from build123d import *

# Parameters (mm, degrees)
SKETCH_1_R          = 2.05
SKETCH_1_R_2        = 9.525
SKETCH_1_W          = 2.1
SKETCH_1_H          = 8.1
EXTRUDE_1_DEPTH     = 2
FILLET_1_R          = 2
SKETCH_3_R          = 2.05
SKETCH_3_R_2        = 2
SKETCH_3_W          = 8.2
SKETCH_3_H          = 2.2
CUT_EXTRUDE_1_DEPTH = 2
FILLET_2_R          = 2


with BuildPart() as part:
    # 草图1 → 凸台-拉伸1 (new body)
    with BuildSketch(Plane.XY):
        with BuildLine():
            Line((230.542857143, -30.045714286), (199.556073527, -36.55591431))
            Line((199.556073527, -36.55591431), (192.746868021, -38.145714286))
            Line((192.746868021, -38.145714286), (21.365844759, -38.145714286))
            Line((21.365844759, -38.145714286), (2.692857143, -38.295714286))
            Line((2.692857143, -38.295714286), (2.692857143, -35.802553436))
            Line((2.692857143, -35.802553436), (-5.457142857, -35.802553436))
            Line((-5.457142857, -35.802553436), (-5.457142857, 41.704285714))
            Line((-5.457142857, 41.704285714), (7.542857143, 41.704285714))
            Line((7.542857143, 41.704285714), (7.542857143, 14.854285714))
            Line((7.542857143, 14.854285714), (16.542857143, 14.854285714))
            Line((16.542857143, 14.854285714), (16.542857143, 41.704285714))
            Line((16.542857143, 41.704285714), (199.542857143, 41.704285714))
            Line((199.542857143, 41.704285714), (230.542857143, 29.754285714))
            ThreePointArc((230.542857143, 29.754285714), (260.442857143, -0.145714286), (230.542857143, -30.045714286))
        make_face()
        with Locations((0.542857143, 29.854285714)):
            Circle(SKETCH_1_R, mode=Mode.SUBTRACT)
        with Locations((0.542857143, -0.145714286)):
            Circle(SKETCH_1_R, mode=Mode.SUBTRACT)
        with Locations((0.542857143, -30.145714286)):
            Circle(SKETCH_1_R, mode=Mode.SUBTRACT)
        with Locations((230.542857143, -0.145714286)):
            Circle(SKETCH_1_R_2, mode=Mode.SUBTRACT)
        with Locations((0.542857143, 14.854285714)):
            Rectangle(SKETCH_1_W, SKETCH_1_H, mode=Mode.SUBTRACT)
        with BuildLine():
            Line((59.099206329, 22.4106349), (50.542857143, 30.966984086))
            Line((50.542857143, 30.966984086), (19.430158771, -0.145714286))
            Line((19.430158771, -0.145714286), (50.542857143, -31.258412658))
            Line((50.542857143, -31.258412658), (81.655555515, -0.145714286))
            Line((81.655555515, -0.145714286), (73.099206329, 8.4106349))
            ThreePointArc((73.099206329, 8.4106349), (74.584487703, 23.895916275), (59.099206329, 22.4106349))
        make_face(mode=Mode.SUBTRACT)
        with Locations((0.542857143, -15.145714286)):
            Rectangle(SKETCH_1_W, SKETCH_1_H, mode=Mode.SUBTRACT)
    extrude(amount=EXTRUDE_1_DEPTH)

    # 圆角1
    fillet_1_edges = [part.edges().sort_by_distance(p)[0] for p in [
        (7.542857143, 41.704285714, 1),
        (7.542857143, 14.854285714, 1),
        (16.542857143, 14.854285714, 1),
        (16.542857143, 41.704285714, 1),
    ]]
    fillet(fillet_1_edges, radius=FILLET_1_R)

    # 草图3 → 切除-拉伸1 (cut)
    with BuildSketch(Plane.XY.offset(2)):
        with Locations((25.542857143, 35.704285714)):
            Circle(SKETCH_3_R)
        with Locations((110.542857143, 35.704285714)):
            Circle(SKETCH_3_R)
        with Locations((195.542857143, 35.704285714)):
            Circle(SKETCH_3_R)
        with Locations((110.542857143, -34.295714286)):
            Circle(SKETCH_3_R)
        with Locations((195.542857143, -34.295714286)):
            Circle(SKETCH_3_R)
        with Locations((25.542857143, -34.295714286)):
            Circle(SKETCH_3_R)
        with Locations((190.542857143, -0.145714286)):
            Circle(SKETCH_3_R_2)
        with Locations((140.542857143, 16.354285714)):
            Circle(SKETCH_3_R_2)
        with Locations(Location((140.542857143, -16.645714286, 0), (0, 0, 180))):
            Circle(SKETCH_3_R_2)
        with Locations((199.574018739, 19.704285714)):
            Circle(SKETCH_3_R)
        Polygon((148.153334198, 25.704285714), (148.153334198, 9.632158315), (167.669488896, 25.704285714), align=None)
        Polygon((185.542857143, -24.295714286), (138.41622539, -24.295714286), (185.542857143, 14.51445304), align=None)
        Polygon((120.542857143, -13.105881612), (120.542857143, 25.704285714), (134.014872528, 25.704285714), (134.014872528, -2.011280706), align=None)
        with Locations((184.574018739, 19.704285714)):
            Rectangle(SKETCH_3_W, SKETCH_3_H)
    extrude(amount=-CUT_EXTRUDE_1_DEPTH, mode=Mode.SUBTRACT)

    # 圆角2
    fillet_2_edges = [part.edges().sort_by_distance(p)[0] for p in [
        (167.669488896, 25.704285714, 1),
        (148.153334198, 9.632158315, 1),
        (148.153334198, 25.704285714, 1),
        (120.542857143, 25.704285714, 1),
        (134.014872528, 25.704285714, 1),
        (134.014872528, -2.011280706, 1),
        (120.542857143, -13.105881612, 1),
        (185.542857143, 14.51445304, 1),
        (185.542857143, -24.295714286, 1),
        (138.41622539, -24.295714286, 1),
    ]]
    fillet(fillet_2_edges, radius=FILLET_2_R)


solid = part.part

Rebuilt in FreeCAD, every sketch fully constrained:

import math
import FreeCAD as App
import Part
import Sketcher

V = App.Vector
Q = App.Units.Quantity


def edges_at(feature, points):
    """Names of the edges that pass closest to the given points."""
    edges = feature.Shape.Edges
    near = lambda p: min(range(len(edges)), key=lambda i: edges[i].distToShape(Part.Vertex(*p))[0])
    return sorted({f"Edge{near(p) + 1}" for p in points})

doc = App.newDocument("Part")
body = doc.addObject("PartDesign::Body", "Body")

sketch1 = doc.addObject("Sketcher::SketchObject", "Sketch")
body.addObject(sketch1)
sketch1.AttachmentSupport = (doc.XY_Plane, [""])
sketch1.MapMode = "FlatFace"
sketch1.addGeometry(Part.LineSegment(V(199.556074, -36.555914, 0), V(230.542857, -30.045714, 0)), False)
sketch1.addGeometry(Part.ArcOfCircle(Part.Circle(V(230.542857, -0.145714, 0), V(0, 0, 1), 29.9), math.radians(-90), math.radians(90)), False)
sketch1.addGeometry(Part.LineSegment(V(230.542857, 29.754286, 0), V(199.542857, 41.704286, 0)), False)
sketch1.addGeometry(Part.LineSegment(V(199.542857, 41.704286, 0), V(16.542857, 41.704286, 0)), False)
sketch1.addGeometry(Part.LineSegment(V(16.542857, 41.704286, 0), V(16.542857, 14.854286, 0)), False)
sketch1.addGeometry(Part.LineSegment(V(16.542857, 14.854286, 0), V(7.542857, 14.854286, 0)), False)
sketch1.addGeometry(Part.LineSegment(V(7.542857, 14.854286, 0), V(7.542857, 41.704286, 0)), False)
sketch1.addGeometry(Part.LineSegment(V(7.542857, 41.704286, 0), V(-5.457143, 41.704286, 0)), False)
sketch1.addGeometry(Part.LineSegment(V(-5.457143, 41.704286, 0), V(-5.457143, -35.802553, 0)), False)
sketch1.addGeometry(Part.LineSegment(V(-5.457143, -35.802553, 0), V(2.692857, -35.802553, 0)), False)
sketch1.addGeometry(Part.LineSegment(V(2.692857, -35.802553, 0), V(2.692857, -38.295714, 0)), False)
sketch1.addGeometry(Part.LineSegment(V(2.692857, -38.295714, 0), V(21.365845, -38.145714, 0)), False)
sketch1.addGeometry(Part.LineSegment(V(21.365845, -38.145714, 0), V(192.746868, -38.145714, 0)), False)
sketch1.addGeometry(Part.LineSegment(V(192.746868, -38.145714, 0), V(199.556074, -36.555914, 0)), False)
sketch1.addGeometry(Part.Circle(V(0.542857, -30.145714, 0), V(0, 0, 1), 2.05), False)
sketch1.addGeometry(Part.LineSegment(V(-0.507143, -19.195714, 0), V(-0.507143, -11.095714, 0)), False)
sketch1.addGeometry(Part.LineSegment(V(-0.507143, -11.095714, 0), V(1.592857, -11.095714, 0)), False)
sketch1.addGeometry(Part.LineSegment(V(1.592857, -11.095714, 0), V(1.592857, -19.195714, 0)), False)
sketch1.addGeometry(Part.LineSegment(V(1.592857, -19.195714, 0), V(-0.507143, -19.195714, 0)), False)
sketch1.addGeometry(Part.Circle(V(230.542857, -0.145714, 0), V(0, 0, 1), 9.525), False)
sketch1.addGeometry(Part.ArcOfCircle(Part.Circle(V(67.454494, 16.765923, 0), V(0, 0, 1), 10.083333), math.radians(-55.957607), math.radians(145.957607)), False)
sketch1.addGeometry(Part.LineSegment(V(73.099206, 8.410635, 0), V(81.655556, -0.145714, 0)), False)
sketch1.addGeometry(Part.LineSegment(V(81.655556, -0.145714, 0), V(50.542857, -31.258413, 0)), False)
sketch1.addGeometry(Part.LineSegment(V(50.542857, -31.258413, 0), V(19.430159, -0.145714, 0)), False)
sketch1.addGeometry(Part.LineSegment(V(19.430159, -0.145714, 0), V(50.542857, 30.966984, 0)), False)
sketch1.addGeometry(Part.LineSegment(V(50.542857, 30.966984, 0), V(59.099206, 22.410635, 0)), False)
sketch1.addGeometry(Part.Circle(V(0.542857, -0.145714, 0), V(0, 0, 1), 2.05), False)
sketch1.addGeometry(Part.LineSegment(V(-0.507143, 10.804286, 0), V(-0.507143, 18.904286, 0)), False)
sketch1.addGeometry(Part.LineSegment(V(-0.507143, 18.904286, 0), V(1.592857, 18.904286, 0)), False)
sketch1.addGeometry(Part.LineSegment(V(1.592857, 18.904286, 0), V(1.592857, 10.804286, 0)), False)
sketch1.addGeometry(Part.LineSegment(V(1.592857, 10.804286, 0), V(-0.507143, 10.804286, 0)), False)
sketch1.addGeometry(Part.Circle(V(0.542857, 29.854286, 0), V(0, 0, 1), 2.05), False)
sketch1.addConstraint(Sketcher.Constraint("Coincident", 0, 2, 1, 1))
sketch1.addConstraint(Sketcher.Constraint("Coincident", 1, 2, 2, 1))
sketch1.addConstraint(Sketcher.Constraint("Coincident", 2, 2, 3, 1))
sketch1.addConstraint(Sketcher.Constraint("Coincident", 3, 2, 4, 1))
sketch1.addConstraint(Sketcher.Constraint("Coincident", 4, 2, 5, 1))
sketch1.addConstraint(Sketcher.Constraint("Coincident", 5, 2, 6, 1))
sketch1.addConstraint(Sketcher.Constraint("Coincident", 6, 2, 7, 1))
sketch1.addConstraint(Sketcher.Constraint("Coincident", 7, 2, 8, 1))
sketch1.addConstraint(Sketcher.Constraint("Coincident", 8, 2, 9, 1))
sketch1.addConstraint(Sketcher.Constraint("Coincident", 9, 2, 10, 1))
sketch1.addConstraint(Sketcher.Constraint("Coincident", 10, 2, 11, 1))
sketch1.addConstraint(Sketcher.Constraint("Coincident", 11, 2, 12, 1))
sketch1.addConstraint(Sketcher.Constraint("Coincident", 12, 2, 13, 1))
sketch1.addConstraint(Sketcher.Constraint("Coincident", 13, 2, 0, 1))
sketch1.addConstraint(Sketcher.Constraint("Coincident", 15, 2, 16, 1))
sketch1.addConstraint(Sketcher.Constraint("Coincident", 16, 2, 17, 1))
sketch1.addConstraint(Sketcher.Constraint("Coincident", 17, 2, 18, 1))
sketch1.addConstraint(Sketcher.Constraint("Coincident", 18, 2, 15, 1))
sketch1.addConstraint(Sketcher.Constraint("Coincident", 20, 1, 21, 1))
sketch1.addConstraint(Sketcher.Constraint("Coincident", 21, 2, 22, 1))
sketch1.addConstraint(Sketcher.Constraint("Coincident", 22, 2, 23, 1))
sketch1.addConstraint(Sketcher.Constraint("Coincident", 23, 2, 24, 1))
sketch1.addConstraint(Sketcher.Constraint("Coincident", 24, 2, 25, 1))
sketch1.addConstraint(Sketcher.Constraint("Coincident", 25, 2, 20, 2))
sketch1.addConstraint(Sketcher.Constraint("Coincident", 27, 2, 28, 1))
sketch1.addConstraint(Sketcher.Constraint("Coincident", 28, 2, 29, 1))
sketch1.addConstraint(Sketcher.Constraint("Coincident", 29, 2, 30, 1))
sketch1.addConstraint(Sketcher.Constraint("Coincident", 30, 2, 27, 1))
sketch1.addConstraint(Sketcher.Constraint("Horizontal", 3))
sketch1.addConstraint(Sketcher.Constraint("Vertical", 4))
sketch1.addConstraint(Sketcher.Constraint("Horizontal", 5))
sketch1.addConstraint(Sketcher.Constraint("Vertical", 6))
sketch1.addConstraint(Sketcher.Constraint("Horizontal", 7))
sketch1.addConstraint(Sketcher.Constraint("Vertical", 8))
sketch1.addConstraint(Sketcher.Constraint("Horizontal", 9))
sketch1.addConstraint(Sketcher.Constraint("Vertical", 10))
sketch1.addConstraint(Sketcher.Constraint("Horizontal", 12))
sketch1.addConstraint(Sketcher.Constraint("Vertical", 15))
sketch1.addConstraint(Sketcher.Constraint("Horizontal", 16))
sketch1.addConstraint(Sketcher.Constraint("Vertical", 17))
sketch1.addConstraint(Sketcher.Constraint("Horizontal", 18))
sketch1.addConstraint(Sketcher.Constraint("Vertical", 27))
sketch1.addConstraint(Sketcher.Constraint("Horizontal", 28))
sketch1.addConstraint(Sketcher.Constraint("Vertical", 29))
sketch1.addConstraint(Sketcher.Constraint("Horizontal", 30))
sketch1.addConstraint(Sketcher.Constraint("Coincident", 19, 3, 1, 3))
sketch1.addConstraint(Sketcher.Constraint("Equal", 14, 26))
sketch1.addConstraint(Sketcher.Constraint("Equal", 26, 31))
sketch1.addConstraint(Sketcher.Constraint("Perpendicular", 21, 22))
sketch1.addConstraint(Sketcher.Constraint("Perpendicular", 22, 23))
sketch1.addConstraint(Sketcher.Constraint("Perpendicular", 23, 24))
sketch1.addConstraint(Sketcher.Constraint("Perpendicular", 24, 25))
sketch1.addConstraint(Sketcher.Constraint("Horizontal", 19, 3, 26, 3))
sketch1.addConstraint(Sketcher.Constraint("Horizontal", 3, 2, 6, 2))
sketch1.addConstraint(Sketcher.Constraint("Horizontal", 26, 3, 21, 2))
sketch1.addConstraint(Sketcher.Constraint("Horizontal", 21, 2, 23, 2))
sketch1.addConstraint(Sketcher.Constraint("Vertical", 14, 3, 26, 3))
sketch1.addConstraint(Sketcher.Constraint("Vertical", 26, 3, 31, 3))
sketch1.addConstraint(Sketcher.Constraint("Vertical", 19, 3, 0, 2))
sketch1.addConstraint(Sketcher.Constraint("Vertical", 0, 2, 1, 2))
sketch1.addConstraint(Sketcher.Constraint("Vertical", 22, 2, 24, 2))
sketch1.addConstraint(Sketcher.Constraint("Vertical", 18, 2, 27, 2))
sketch1.addConstraint(Sketcher.Constraint("Vertical", 17, 2, 28, 2))
sketch1.addConstraint(Sketcher.Constraint("Equal", 17, 27))
sketch1.addConstraint(Sketcher.Constraint("Equal", 22, 23))
sketch1.addConstraint(Sketcher.Constraint("Equal", 21, 25))
sketch1.addConstraint(Sketcher.Constraint("Diameter", 14, Q("4.1 mm")))
sketch1.addConstraint(Sketcher.Constraint("Radius", 1, Q("29.9 mm")))
sketch1.addConstraint(Sketcher.Constraint("Diameter", 19, Q("19.05 mm")))
sketch1.addConstraint(Sketcher.Constraint("DistanceX", 3, 2, 3, 1, Q("183 mm")))
sketch1.addConstraint(Sketcher.Constraint("DistanceX", 5, 2, 5, 1, Q("9 mm")))
sketch1.addConstraint(Sketcher.Constraint("DistanceX", 7, 2, 7, 1, Q("13 mm")))
sketch1.addConstraint(Sketcher.Constraint("Distance", 22, Q("44 mm")))
sketch1.addConstraint(Sketcher.Constraint("DistanceX", 16, 1, 16, 2, Q("2.1 mm")))
sketch1.addConstraint(Sketcher.Constraint("DistanceY", 15, 1, 15, 2, Q("8.1 mm")))
sketch1.addConstraint(Sketcher.Constraint("DistanceX", 14, 3, 1, 3, Q("230 mm")))
sketch1.addConstraint(Sketcher.Constraint("DistanceY", 14, 3, 1, 3, Q("30 mm")))
sketch1.addConstraint(Sketcher.Constraint("DistanceY", 26, 3, 31, 3, Q("30 mm")))
sketch1.addConstraint(Sketcher.Constraint("DistanceX", 2, 2, 1, 2, Q("31 mm")))
sketch1.addConstraint(Sketcher.Constraint("DistanceY", 26, 3, 4, 2, Q("15 mm")))
sketch1.addConstraint(Sketcher.Constraint("DistanceY", 11, 2, 14, 3, Q("8 mm")))
sketch1.addConstraint(Sketcher.Constraint("DistanceX", 3, 2, 24, 2, Q("34 mm")))
sketch1.addConstraint(Sketcher.Constraint("DistanceX", 25, 2, 20, 1, Q("14 mm")))
sketch1.addConstraint(Sketcher.Constraint("DistanceX", 9, 1, 9, 2, Q("8.15 mm")))
sketch1.addConstraint(Sketcher.Constraint("DistanceY", 4, 2, 4, 1, Q("26.85 mm")))
sketch1.addConstraint(Sketcher.Constraint("DistanceX", 15, 2, 9, 2, Q("3.2 mm")))
sketch1.addConstraint(Sketcher.Constraint("DistanceY", 27, 2, 7, 2, Q("22.8 mm")))
sketch1.addConstraint(Sketcher.Constraint("DistanceY", 10, 2, 14, 3, Q("8.15 mm")))
sketch1.addConstraint(Sketcher.Constraint("DistanceY", 15, 2, 26, 3, Q("10.95 mm")))
sketch1.addConstraint(Sketcher.Constraint("Radius", 20, Q("10.083333 mm")))
sketch1.addConstraint(Sketcher.Constraint("DistanceY", 8, 2, 8, 1, Q("77.506839 mm")))
sketch1.addConstraint(Sketcher.Constraint("DistanceY", 12, 2, 13, 2, Q("1.5898 mm")))
sketch1.addConstraint(Sketcher.Constraint("Distance", 11, Q("18.67359 mm")))
sketch1.addConstraint(Sketcher.Constraint("DistanceX", 12, 1, 12, 2, Q("171.381023 mm")))
sketch1.addConstraint(Sketcher.Constraint("DistanceX", -1, 1, 12, 2, Q("192.746868 mm")))
sketch1.addConstraint(Sketcher.Constraint("Distance", 0, Q("31.663283 mm")))
sketch1.addConstraint(Sketcher.Constraint("DistanceY", 1, 3, -1, 1, Q("0.145714 mm")))
pad1 = doc.addObject("PartDesign::Pad", "Pad")
body.addObject(pad1)
pad1.Profile = sketch1
pad1.Length = 2
doc.recompute()

fillet = doc.addObject("PartDesign::Fillet", "Fillet")
body.addObject(fillet)
fillet.Base = (pad1, edges_at(pad1, [
    (7.543, 41.704, 1),
    (7.543, 14.854, 1),
    (16.543, 14.854, 1),
    (16.543, 41.704, 1),
]))
fillet.Radius = 2

sketch2 = doc.addObject("Sketcher::SketchObject", "Sketch001")
body.addObject(sketch2)
sketch2.AttachmentSupport = (doc.XY_Plane, [""])
sketch2.MapMode = "FlatFace"
sketch2.AttachmentOffset = App.Placement(V(0, 0, 2), App.Rotation())
sketch2.addGeometry(Part.Circle(V(25.542857, 35.704286, 0), V(0, 0, 1), 2.05), False)
sketch2.addGeometry(Part.Circle(V(110.542857, 35.704286, 0), V(0, 0, 1), 2.05), False)
sketch2.addGeometry(Part.Circle(V(195.542857, 35.704286, 0), V(0, 0, 1), 2.05), False)
sketch2.addGeometry(Part.Circle(V(110.542857, -34.295714, 0), V(0, 0, 1), 2.05), False)
sketch2.addGeometry(Part.Circle(V(195.542857, -34.295714, 0), V(0, 0, 1), 2.05), False)
sketch2.addGeometry(Part.Circle(V(25.542857, -34.295714, 0), V(0, 0, 1), 2.05), False)
sketch2.addGeometry(Part.Circle(V(190.542857, -0.145714, 0), V(0, 0, 1), 2), False)
sketch2.addGeometry(Part.Circle(V(140.542857, 16.354286, 0), V(0, 0, 1), 2), False)
sketch2.addGeometry(Part.Circle(V(140.542857, -16.645714, 0), V(0, 0, 1), 2), False)
sketch2.addGeometry(Part.Circle(V(199.574019, 19.704286, 0), V(0, 0, 1), 2.05), False)
sketch2.addGeometry(Part.LineSegment(V(148.153334, 25.704286, 0), V(148.153334, 9.632158, 0)), False)
sketch2.addGeometry(Part.LineSegment(V(148.153334, 9.632158, 0), V(167.669489, 25.704286, 0)), False)
sketch2.addGeometry(Part.LineSegment(V(167.669489, 25.704286, 0), V(148.153334, 25.704286, 0)), False)
sketch2.addGeometry(Part.LineSegment(V(138.416225, -24.295714, 0), V(185.542857, -24.295714, 0)), False)
sketch2.addGeometry(Part.LineSegment(V(185.542857, -24.295714, 0), V(185.542857, 14.514453, 0)), False)
sketch2.addGeometry(Part.LineSegment(V(185.542857, 14.514453, 0), V(138.416225, -24.295714, 0)), False)
sketch2.addGeometry(Part.LineSegment(V(120.542857, 25.704286, 0), V(120.542857, -13.105882, 0)), False)
sketch2.addGeometry(Part.LineSegment(V(120.542857, -13.105882, 0), V(134.014873, -2.011281, 0)), False)
sketch2.addGeometry(Part.LineSegment(V(134.014873, -2.011281, 0), V(134.014873, 25.704286, 0)), False)
sketch2.addGeometry(Part.LineSegment(V(134.014873, 25.704286, 0), V(120.542857, 25.704286, 0)), False)
sketch2.addGeometry(Part.LineSegment(V(180.474019, 20.804286, 0), V(180.474019, 18.604286, 0)), False)
sketch2.addGeometry(Part.LineSegment(V(180.474019, 18.604286, 0), V(188.674019, 18.604286, 0)), False)
sketch2.addGeometry(Part.LineSegment(V(188.674019, 18.604286, 0), V(188.674019, 20.804286, 0)), False)
sketch2.addGeometry(Part.LineSegment(V(188.674019, 20.804286, 0), V(180.474019, 20.804286, 0)), False)
sketch2.addConstraint(Sketcher.Constraint("Coincident", 10, 2, 11, 1))
sketch2.addConstraint(Sketcher.Constraint("Coincident", 11, 2, 12, 1))
sketch2.addConstraint(Sketcher.Constraint("Coincident", 12, 2, 10, 1))
sketch2.addConstraint(Sketcher.Constraint("Coincident", 13, 2, 14, 1))
sketch2.addConstraint(Sketcher.Constraint("Coincident", 14, 2, 15, 1))
sketch2.addConstraint(Sketcher.Constraint("Coincident", 15, 2, 13, 1))
sketch2.addConstraint(Sketcher.Constraint("Coincident", 16, 2, 17, 1))
sketch2.addConstraint(Sketcher.Constraint("Coincident", 17, 2, 18, 1))
sketch2.addConstraint(Sketcher.Constraint("Coincident", 18, 2, 19, 1))
sketch2.addConstraint(Sketcher.Constraint("Coincident", 19, 2, 16, 1))
sketch2.addConstraint(Sketcher.Constraint("Coincident", 20, 2, 21, 1))
sketch2.addConstraint(Sketcher.Constraint("Coincident", 21, 2, 22, 1))
sketch2.addConstraint(Sketcher.Constraint("Coincident", 22, 2, 23, 1))
sketch2.addConstraint(Sketcher.Constraint("Coincident", 23, 2, 20, 1))
sketch2.addConstraint(Sketcher.Constraint("Vertical", 10))
sketch2.addConstraint(Sketcher.Constraint("Horizontal", 12))
sketch2.addConstraint(Sketcher.Constraint("Horizontal", 13))
sketch2.addConstraint(Sketcher.Constraint("Vertical", 14))
sketch2.addConstraint(Sketcher.Constraint("Vertical", 16))
sketch2.addConstraint(Sketcher.Constraint("Vertical", 18))
sketch2.addConstraint(Sketcher.Constraint("Horizontal", 19))
sketch2.addConstraint(Sketcher.Constraint("Vertical", 20))
sketch2.addConstraint(Sketcher.Constraint("Horizontal", 21))
sketch2.addConstraint(Sketcher.Constraint("Vertical", 22))
sketch2.addConstraint(Sketcher.Constraint("Horizontal", 23))
sketch2.addConstraint(Sketcher.Constraint("Equal", 0, 1))
sketch2.addConstraint(Sketcher.Constraint("Equal", 1, 2))
sketch2.addConstraint(Sketcher.Constraint("Equal", 2, 3))
sketch2.addConstraint(Sketcher.Constraint("Equal", 3, 4))
sketch2.addConstraint(Sketcher.Constraint("Equal", 4, 5))
sketch2.addConstraint(Sketcher.Constraint("Equal", 6, 7))
sketch2.addConstraint(Sketcher.Constraint("Equal", 7, 8))
sketch2.addConstraint(Sketcher.Constraint("Equal", 5, 9))
sketch2.addConstraint(Sketcher.Constraint("Parallel", 11, 15))
sketch2.addConstraint(Sketcher.Constraint("Parallel", 15, 17))
sketch2.addConstraint(Sketcher.Constraint("Horizontal", 0, 3, 1, 3))
sketch2.addConstraint(Sketcher.Constraint("Horizontal", 1, 3, 2, 3))
sketch2.addConstraint(Sketcher.Constraint("Horizontal", 3, 3, 4, 3))
sketch2.addConstraint(Sketcher.Constraint("Horizontal", 4, 3, 5, 3))
sketch2.addConstraint(Sketcher.Constraint("Horizontal", 12, 2, 18, 2))
sketch2.addConstraint(Sketcher.Constraint("Vertical", 1, 3, 3, 3))
sketch2.addConstraint(Sketcher.Constraint("Vertical", 2, 3, 4, 3))
sketch2.addConstraint(Sketcher.Constraint("Vertical", 0, 3, 5, 3))
sketch2.addConstraint(Sketcher.Constraint("Vertical", 7, 3, 8, 3))
sketch2.addConstraint(Sketcher.Constraint("Equal", 14, 16))
sketch2.addConstraint(Sketcher.Constraint("Diameter", 6, Q("4 mm")))
sketch2.addConstraint(Sketcher.Constraint("Diameter", 0, Q("4.1 mm")))
sketch2.addConstraint(Sketcher.Constraint("DistanceX", 21, 1, 21, 2, Q("8.2 mm")))
sketch2.addConstraint(Sketcher.Constraint("DistanceY", 20, 2, 20, 1, Q("2.2 mm")))
sketch2.addConstraint(Sketcher.Constraint("DistanceX", 0, 3, 1, 3, Q("85 mm")))
sketch2.addConstraint(Sketcher.Constraint("DistanceX", 1, 3, 2, 3, Q("85 mm")))
sketch2.addConstraint(Sketcher.Constraint("DistanceY", 3, 3, 1, 3, Q("70 mm")))
sketch2.addConstraint(Sketcher.Constraint("DistanceX", 6, 3, 4, 3, Q("5 mm")))
sketch2.addConstraint(Sketcher.Constraint("DistanceX", 1, 3, 7, 3, Q("30 mm")))
sketch2.addConstraint(Sketcher.Constraint("DistanceY", 8, 3, 7, 3, Q("33 mm")))
sketch2.addConstraint(Sketcher.Constraint("DistanceY", 9, 3, 2, 3, Q("16 mm")))
sketch2.addConstraint(Sketcher.Constraint("DistanceY", 11, 2, 2, 3, Q("10 mm")))
sketch2.addConstraint(Sketcher.Constraint("DistanceX", 13, 2, 4, 3, Q("10 mm")))
sketch2.addConstraint(Sketcher.Constraint("DistanceY", 4, 3, 13, 2, Q("10 mm")))
sketch2.addConstraint(Sketcher.Constraint("DistanceX", 16, 2, 8, 3, Q("20 mm")))
sketch2.addConstraint(Sketcher.Constraint("DistanceY", 6, 3, 7, 3, Q("16.5 mm")))
sketch2.addConstraint(Sketcher.Constraint("DistanceY", 20, 2, 11, 2, Q("7.1 mm")))
sketch2.addConstraint(Sketcher.Constraint("DistanceX", 20, 2, 9, 3, Q("19.1 mm")))
sketch2.addConstraint(Sketcher.Constraint("DistanceY", 4, 3, 6, 3, Q("34.15 mm")))
sketch2.addConstraint(Sketcher.Constraint("DistanceX", 13, 1, 13, 2, Q("47.126632 mm")))
sketch2.addConstraint(Sketcher.Constraint("DistanceY", 16, 2, 17, 2, Q("11.094601 mm")))
sketch2.addConstraint(Sketcher.Constraint("DistanceX", 12, 2, 12, 1, Q("19.516155 mm")))
sketch2.addConstraint(Sketcher.Constraint("DistanceX", 19, 2, 19, 1, Q("13.472015 mm")))
sketch2.addConstraint(Sketcher.Constraint("DistanceX", -1, 1, 9, 3, Q("199.574019 mm")))
sketch2.addConstraint(Sketcher.Constraint("DistanceY", -1, 1, 10, 2, Q("9.632158 mm")))
sketch2.addConstraint(Sketcher.Constraint("DistanceX", -1, 1, 11, 2, Q("167.669489 mm")))
sketch2.addConstraint(Sketcher.Constraint("DistanceX", 2, 3, 9, 3, Q("4.031162 mm")))
pocket1 = doc.addObject("PartDesign::Pocket", "Pocket")
body.addObject(pocket1)
pocket1.Profile = sketch2
pocket1.Length = 2
doc.recompute()

fillet2 = doc.addObject("PartDesign::Fillet", "Fillet001")
body.addObject(fillet2)
fillet2.Base = (pocket1, edges_at(pocket1, [
    (167.669, 25.704, 1),
    (148.153, 9.632, 1),
    (148.153, 25.704, 1),
    (120.543, 25.704, 1),
    (134.015, 25.704, 1),
    (134.015, -2.011, 1),
    (120.543, -13.106, 1),
    (185.543, 14.514, 1),
    (185.543, -24.296, 1),
    (138.416, -24.296, 1),
]))
fillet2.Radius = 2

doc.recompute()
